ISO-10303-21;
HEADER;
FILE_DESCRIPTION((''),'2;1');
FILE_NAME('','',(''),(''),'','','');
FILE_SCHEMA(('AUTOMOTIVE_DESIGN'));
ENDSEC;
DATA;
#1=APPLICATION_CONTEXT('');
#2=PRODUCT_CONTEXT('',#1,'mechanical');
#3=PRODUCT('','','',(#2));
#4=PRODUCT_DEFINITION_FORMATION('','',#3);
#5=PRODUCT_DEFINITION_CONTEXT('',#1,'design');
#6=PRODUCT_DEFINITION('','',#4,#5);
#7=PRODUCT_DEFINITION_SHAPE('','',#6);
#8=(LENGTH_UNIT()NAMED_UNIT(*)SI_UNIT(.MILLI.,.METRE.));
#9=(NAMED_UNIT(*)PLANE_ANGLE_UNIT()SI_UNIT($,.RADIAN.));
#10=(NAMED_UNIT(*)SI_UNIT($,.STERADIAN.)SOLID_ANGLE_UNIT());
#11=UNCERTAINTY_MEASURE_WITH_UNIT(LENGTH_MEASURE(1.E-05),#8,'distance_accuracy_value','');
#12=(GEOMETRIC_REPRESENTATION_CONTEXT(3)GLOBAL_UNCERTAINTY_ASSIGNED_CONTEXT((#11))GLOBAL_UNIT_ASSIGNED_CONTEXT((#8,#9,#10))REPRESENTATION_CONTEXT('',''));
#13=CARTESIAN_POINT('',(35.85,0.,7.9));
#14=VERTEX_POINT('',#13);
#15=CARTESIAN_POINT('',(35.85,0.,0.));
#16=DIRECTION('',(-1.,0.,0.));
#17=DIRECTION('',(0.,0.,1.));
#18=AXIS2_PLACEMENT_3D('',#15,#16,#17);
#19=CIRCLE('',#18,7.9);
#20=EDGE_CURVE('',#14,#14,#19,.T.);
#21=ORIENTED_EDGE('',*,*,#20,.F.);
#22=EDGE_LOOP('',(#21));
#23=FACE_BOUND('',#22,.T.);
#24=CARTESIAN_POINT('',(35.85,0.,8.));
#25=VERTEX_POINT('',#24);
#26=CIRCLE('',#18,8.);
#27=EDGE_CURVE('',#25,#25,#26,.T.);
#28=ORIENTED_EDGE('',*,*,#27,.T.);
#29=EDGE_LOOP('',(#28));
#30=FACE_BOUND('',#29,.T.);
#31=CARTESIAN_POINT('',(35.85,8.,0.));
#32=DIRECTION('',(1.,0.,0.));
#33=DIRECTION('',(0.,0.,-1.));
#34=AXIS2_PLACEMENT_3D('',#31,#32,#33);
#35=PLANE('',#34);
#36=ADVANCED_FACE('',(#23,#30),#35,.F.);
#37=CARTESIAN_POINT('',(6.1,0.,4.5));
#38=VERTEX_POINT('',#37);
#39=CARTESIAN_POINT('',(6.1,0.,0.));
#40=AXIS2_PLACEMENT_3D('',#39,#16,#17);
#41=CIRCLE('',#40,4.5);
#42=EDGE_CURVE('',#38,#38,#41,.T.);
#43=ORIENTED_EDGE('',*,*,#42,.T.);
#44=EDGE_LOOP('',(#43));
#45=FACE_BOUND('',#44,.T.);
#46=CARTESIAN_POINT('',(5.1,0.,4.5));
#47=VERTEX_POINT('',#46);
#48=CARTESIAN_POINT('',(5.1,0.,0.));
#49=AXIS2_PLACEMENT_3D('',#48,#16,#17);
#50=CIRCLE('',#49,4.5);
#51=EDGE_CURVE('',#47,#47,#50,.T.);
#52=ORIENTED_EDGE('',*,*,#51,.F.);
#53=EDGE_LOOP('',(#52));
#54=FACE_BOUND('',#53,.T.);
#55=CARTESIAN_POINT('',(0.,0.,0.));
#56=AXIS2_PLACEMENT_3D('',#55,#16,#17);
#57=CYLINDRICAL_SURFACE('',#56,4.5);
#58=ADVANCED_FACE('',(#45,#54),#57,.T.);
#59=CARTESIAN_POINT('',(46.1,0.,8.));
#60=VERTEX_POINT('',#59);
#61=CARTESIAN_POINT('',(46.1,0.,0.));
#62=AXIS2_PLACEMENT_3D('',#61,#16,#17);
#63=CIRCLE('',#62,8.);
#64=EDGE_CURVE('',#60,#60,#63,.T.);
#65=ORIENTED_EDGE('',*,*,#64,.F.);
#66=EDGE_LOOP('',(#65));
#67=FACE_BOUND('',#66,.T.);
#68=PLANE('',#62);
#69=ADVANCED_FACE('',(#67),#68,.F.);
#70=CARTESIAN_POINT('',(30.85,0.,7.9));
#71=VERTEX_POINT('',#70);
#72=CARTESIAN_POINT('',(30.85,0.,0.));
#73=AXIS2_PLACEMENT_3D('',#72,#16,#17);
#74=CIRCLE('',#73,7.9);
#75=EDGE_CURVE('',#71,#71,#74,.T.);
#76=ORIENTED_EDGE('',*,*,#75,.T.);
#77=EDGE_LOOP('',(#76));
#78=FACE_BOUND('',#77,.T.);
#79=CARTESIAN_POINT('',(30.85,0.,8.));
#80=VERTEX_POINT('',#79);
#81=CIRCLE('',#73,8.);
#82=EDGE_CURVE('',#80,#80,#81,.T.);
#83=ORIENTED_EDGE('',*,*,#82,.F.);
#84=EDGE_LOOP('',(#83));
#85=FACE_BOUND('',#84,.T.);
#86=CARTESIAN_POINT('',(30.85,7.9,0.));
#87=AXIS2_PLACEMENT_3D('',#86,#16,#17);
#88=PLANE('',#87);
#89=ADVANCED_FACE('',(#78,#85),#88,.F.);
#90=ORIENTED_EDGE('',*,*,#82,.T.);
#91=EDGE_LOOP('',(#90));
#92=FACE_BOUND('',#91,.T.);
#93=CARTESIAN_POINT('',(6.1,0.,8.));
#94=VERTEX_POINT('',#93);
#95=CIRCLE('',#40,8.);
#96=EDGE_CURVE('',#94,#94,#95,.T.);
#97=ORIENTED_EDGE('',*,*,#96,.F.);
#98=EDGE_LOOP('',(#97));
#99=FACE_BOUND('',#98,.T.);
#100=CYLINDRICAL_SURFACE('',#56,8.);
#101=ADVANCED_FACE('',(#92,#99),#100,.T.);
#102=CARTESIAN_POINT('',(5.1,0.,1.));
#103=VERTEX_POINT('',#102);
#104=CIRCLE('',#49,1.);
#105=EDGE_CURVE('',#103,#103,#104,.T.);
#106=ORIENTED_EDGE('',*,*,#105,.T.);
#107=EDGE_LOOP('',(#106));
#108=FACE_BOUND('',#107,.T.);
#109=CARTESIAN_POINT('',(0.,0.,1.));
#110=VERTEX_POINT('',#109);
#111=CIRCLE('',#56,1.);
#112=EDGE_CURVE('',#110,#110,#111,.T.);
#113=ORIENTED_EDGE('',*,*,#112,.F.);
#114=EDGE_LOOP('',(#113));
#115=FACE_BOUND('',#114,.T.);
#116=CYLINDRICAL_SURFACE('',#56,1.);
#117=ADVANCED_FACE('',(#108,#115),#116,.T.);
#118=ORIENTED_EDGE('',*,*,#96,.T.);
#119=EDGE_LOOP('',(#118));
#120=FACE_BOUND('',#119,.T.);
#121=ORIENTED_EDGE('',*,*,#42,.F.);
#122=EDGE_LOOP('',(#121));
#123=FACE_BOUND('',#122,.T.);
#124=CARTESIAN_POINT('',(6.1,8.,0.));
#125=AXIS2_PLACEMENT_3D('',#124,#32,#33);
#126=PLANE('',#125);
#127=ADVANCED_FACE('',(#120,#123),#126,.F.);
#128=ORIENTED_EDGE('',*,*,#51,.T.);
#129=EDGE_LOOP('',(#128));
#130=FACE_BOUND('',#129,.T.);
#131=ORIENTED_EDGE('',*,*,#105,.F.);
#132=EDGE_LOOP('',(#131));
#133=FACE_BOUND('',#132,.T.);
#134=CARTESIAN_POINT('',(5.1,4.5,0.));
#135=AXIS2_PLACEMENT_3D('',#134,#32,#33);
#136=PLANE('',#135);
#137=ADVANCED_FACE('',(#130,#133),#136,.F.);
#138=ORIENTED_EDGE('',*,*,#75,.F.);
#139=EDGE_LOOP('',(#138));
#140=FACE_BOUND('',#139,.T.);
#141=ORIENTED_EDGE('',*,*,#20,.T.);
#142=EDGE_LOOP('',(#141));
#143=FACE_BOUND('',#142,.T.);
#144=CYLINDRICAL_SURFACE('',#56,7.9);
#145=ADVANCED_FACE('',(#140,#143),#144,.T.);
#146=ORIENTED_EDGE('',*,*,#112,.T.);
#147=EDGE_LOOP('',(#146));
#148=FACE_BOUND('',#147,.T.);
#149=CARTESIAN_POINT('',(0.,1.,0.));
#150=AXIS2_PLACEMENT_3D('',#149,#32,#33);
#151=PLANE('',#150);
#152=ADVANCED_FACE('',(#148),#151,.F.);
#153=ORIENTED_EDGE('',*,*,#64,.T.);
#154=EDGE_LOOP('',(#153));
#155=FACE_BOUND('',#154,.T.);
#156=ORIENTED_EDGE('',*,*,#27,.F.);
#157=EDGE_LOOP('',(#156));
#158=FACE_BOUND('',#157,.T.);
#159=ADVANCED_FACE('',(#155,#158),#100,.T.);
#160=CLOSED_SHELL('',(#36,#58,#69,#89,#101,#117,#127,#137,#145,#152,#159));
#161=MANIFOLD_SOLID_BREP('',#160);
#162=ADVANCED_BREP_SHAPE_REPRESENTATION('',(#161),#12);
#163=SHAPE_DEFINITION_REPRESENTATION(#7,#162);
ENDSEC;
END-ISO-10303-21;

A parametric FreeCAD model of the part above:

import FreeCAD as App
import Part
import Sketcher
from FreeCAD import Vector
Q = App.Units.Quantity

doc = App.newDocument("Part")
body = doc.addObject("PartDesign::Body", "Body")

# Sketch on XY plane
sketch1 = body.newObject("Sketcher::SketchObject", "Sketch")
sketch1.AttachmentSupport = (doc.getObject("XY_Plane"), [""])
sketch1.MapMode = "FlatFace"
sketch1.addGeometry([
    Part.LineSegment(Vector(0, 0, 0), Vector(46.1, 0, 0)),  # 0
    Part.LineSegment(Vector(46.1, 0, 0), Vector(46.1, 8, 0)),  # 1
    Part.LineSegment(Vector(46.1, 8, 0), Vector(35.85, 8, 0)),  # 2
    Part.LineSegment(Vector(35.85, 8, 0), Vector(35.85, 7.9, 0)),  # 3
    Part.LineSegment(Vector(35.85, 7.9, 0), Vector(30.85, 7.9, 0)),  # 4
    Part.LineSegment(Vector(30.85, 7.9, 0), Vector(30.85, 8, 0)),  # 5
    Part.LineSegment(Vector(30.85, 8, 0), Vector(6.1, 8, 0)),  # 6
    Part.LineSegment(Vector(6.1, 8, 0), Vector(6.1, 4.5, 0)),  # 7
    Part.LineSegment(Vector(6.1, 4.5, 0), Vector(5.1, 4.5, 0)),  # 8
    Part.LineSegment(Vector(5.1, 4.5, 0), Vector(5.1, 1, 0)),  # 9
    Part.LineSegment(Vector(5.1, 1, 0), Vector(0, 1, 0)),  # 10
    Part.LineSegment(Vector(0, 1, 0), Vector(0, 0, 0)),  # 11
], False)
sketch1.addConstraint([
    Sketcher.Constraint("Coincident", 0, 2, 1, 1),
    Sketcher.Constraint("Coincident", 1, 2, 2, 1),
    Sketcher.Constraint("Coincident", 2, 2, 3, 1),
    Sketcher.Constraint("Coincident", 3, 2, 4, 1),
    Sketcher.Constraint("Coincident", 4, 2, 5, 1),
    Sketcher.Constraint("Coincident", 5, 2, 6, 1),
    Sketcher.Constraint("Coincident", 6, 2, 7, 1),
    Sketcher.Constraint("Coincident", 7, 2, 8, 1),
    Sketcher.Constraint("Coincident", 8, 2, 9, 1),
    Sketcher.Constraint("Coincident", 9, 2, 10, 1),
    Sketcher.Constraint("Coincident", 10, 2, 11, 1),
    Sketcher.Constraint("Coincident", 11, 2, 0, 1),
    Sketcher.Constraint("Horizontal", 0),
    Sketcher.Constraint("Vertical", 1),
    Sketcher.Constraint("Horizontal", 2),
    Sketcher.Constraint("Vertical", 3),
    Sketcher.Constraint("Horizontal", 4),
    Sketcher.Constraint("Vertical", 5),
    Sketcher.Constraint("Horizontal", 6),
    Sketcher.Constraint("Vertical", 7),
    Sketcher.Constraint("Horizontal", 8),
    Sketcher.Constraint("Vertical", 9),
    Sketcher.Constraint("Horizontal", 10),
    Sketcher.Constraint("Vertical", 11),
    Sketcher.Constraint("Coincident", 11, 2, -1, 1),
    Sketcher.Constraint("Horizontal", 2, 2, 5, 2),
    Sketcher.Constraint("Equal", 7, 9),
    Sketcher.Constraint("Equal", 8, 11),
    Sketcher.Constraint("DistanceX", 4, 2, 4, 1, Q("5 mm")),
    Sketcher.Constraint("DistanceX", 8, 2, 8, 1, Q("1 mm")),
    Sketcher.Constraint("DistanceY", 1, 1, 1, 2, Q("8 mm")),
    Sketcher.Constraint("DistanceX", 0, 1, 0, 2, Q("46.1 mm")),
    Sketcher.Constraint("DistanceX", 10, 2, 10, 1, Q("5.1 mm")),
    Sketcher.Constraint("DistanceY", 3, 2, 3, 1, Q("0.1 mm")),
    Sketcher.Constraint("DistanceX", 2, 2, 2, 1, Q("10.25 mm")),
])
revolution = body.newObject("PartDesign::Revolution", "Revolution")
revolution.Profile = sketch1
revolution.ReferenceAxis = (sketch1, ["H_Axis"])
revolution.Angle = 360

doc.recompute()
